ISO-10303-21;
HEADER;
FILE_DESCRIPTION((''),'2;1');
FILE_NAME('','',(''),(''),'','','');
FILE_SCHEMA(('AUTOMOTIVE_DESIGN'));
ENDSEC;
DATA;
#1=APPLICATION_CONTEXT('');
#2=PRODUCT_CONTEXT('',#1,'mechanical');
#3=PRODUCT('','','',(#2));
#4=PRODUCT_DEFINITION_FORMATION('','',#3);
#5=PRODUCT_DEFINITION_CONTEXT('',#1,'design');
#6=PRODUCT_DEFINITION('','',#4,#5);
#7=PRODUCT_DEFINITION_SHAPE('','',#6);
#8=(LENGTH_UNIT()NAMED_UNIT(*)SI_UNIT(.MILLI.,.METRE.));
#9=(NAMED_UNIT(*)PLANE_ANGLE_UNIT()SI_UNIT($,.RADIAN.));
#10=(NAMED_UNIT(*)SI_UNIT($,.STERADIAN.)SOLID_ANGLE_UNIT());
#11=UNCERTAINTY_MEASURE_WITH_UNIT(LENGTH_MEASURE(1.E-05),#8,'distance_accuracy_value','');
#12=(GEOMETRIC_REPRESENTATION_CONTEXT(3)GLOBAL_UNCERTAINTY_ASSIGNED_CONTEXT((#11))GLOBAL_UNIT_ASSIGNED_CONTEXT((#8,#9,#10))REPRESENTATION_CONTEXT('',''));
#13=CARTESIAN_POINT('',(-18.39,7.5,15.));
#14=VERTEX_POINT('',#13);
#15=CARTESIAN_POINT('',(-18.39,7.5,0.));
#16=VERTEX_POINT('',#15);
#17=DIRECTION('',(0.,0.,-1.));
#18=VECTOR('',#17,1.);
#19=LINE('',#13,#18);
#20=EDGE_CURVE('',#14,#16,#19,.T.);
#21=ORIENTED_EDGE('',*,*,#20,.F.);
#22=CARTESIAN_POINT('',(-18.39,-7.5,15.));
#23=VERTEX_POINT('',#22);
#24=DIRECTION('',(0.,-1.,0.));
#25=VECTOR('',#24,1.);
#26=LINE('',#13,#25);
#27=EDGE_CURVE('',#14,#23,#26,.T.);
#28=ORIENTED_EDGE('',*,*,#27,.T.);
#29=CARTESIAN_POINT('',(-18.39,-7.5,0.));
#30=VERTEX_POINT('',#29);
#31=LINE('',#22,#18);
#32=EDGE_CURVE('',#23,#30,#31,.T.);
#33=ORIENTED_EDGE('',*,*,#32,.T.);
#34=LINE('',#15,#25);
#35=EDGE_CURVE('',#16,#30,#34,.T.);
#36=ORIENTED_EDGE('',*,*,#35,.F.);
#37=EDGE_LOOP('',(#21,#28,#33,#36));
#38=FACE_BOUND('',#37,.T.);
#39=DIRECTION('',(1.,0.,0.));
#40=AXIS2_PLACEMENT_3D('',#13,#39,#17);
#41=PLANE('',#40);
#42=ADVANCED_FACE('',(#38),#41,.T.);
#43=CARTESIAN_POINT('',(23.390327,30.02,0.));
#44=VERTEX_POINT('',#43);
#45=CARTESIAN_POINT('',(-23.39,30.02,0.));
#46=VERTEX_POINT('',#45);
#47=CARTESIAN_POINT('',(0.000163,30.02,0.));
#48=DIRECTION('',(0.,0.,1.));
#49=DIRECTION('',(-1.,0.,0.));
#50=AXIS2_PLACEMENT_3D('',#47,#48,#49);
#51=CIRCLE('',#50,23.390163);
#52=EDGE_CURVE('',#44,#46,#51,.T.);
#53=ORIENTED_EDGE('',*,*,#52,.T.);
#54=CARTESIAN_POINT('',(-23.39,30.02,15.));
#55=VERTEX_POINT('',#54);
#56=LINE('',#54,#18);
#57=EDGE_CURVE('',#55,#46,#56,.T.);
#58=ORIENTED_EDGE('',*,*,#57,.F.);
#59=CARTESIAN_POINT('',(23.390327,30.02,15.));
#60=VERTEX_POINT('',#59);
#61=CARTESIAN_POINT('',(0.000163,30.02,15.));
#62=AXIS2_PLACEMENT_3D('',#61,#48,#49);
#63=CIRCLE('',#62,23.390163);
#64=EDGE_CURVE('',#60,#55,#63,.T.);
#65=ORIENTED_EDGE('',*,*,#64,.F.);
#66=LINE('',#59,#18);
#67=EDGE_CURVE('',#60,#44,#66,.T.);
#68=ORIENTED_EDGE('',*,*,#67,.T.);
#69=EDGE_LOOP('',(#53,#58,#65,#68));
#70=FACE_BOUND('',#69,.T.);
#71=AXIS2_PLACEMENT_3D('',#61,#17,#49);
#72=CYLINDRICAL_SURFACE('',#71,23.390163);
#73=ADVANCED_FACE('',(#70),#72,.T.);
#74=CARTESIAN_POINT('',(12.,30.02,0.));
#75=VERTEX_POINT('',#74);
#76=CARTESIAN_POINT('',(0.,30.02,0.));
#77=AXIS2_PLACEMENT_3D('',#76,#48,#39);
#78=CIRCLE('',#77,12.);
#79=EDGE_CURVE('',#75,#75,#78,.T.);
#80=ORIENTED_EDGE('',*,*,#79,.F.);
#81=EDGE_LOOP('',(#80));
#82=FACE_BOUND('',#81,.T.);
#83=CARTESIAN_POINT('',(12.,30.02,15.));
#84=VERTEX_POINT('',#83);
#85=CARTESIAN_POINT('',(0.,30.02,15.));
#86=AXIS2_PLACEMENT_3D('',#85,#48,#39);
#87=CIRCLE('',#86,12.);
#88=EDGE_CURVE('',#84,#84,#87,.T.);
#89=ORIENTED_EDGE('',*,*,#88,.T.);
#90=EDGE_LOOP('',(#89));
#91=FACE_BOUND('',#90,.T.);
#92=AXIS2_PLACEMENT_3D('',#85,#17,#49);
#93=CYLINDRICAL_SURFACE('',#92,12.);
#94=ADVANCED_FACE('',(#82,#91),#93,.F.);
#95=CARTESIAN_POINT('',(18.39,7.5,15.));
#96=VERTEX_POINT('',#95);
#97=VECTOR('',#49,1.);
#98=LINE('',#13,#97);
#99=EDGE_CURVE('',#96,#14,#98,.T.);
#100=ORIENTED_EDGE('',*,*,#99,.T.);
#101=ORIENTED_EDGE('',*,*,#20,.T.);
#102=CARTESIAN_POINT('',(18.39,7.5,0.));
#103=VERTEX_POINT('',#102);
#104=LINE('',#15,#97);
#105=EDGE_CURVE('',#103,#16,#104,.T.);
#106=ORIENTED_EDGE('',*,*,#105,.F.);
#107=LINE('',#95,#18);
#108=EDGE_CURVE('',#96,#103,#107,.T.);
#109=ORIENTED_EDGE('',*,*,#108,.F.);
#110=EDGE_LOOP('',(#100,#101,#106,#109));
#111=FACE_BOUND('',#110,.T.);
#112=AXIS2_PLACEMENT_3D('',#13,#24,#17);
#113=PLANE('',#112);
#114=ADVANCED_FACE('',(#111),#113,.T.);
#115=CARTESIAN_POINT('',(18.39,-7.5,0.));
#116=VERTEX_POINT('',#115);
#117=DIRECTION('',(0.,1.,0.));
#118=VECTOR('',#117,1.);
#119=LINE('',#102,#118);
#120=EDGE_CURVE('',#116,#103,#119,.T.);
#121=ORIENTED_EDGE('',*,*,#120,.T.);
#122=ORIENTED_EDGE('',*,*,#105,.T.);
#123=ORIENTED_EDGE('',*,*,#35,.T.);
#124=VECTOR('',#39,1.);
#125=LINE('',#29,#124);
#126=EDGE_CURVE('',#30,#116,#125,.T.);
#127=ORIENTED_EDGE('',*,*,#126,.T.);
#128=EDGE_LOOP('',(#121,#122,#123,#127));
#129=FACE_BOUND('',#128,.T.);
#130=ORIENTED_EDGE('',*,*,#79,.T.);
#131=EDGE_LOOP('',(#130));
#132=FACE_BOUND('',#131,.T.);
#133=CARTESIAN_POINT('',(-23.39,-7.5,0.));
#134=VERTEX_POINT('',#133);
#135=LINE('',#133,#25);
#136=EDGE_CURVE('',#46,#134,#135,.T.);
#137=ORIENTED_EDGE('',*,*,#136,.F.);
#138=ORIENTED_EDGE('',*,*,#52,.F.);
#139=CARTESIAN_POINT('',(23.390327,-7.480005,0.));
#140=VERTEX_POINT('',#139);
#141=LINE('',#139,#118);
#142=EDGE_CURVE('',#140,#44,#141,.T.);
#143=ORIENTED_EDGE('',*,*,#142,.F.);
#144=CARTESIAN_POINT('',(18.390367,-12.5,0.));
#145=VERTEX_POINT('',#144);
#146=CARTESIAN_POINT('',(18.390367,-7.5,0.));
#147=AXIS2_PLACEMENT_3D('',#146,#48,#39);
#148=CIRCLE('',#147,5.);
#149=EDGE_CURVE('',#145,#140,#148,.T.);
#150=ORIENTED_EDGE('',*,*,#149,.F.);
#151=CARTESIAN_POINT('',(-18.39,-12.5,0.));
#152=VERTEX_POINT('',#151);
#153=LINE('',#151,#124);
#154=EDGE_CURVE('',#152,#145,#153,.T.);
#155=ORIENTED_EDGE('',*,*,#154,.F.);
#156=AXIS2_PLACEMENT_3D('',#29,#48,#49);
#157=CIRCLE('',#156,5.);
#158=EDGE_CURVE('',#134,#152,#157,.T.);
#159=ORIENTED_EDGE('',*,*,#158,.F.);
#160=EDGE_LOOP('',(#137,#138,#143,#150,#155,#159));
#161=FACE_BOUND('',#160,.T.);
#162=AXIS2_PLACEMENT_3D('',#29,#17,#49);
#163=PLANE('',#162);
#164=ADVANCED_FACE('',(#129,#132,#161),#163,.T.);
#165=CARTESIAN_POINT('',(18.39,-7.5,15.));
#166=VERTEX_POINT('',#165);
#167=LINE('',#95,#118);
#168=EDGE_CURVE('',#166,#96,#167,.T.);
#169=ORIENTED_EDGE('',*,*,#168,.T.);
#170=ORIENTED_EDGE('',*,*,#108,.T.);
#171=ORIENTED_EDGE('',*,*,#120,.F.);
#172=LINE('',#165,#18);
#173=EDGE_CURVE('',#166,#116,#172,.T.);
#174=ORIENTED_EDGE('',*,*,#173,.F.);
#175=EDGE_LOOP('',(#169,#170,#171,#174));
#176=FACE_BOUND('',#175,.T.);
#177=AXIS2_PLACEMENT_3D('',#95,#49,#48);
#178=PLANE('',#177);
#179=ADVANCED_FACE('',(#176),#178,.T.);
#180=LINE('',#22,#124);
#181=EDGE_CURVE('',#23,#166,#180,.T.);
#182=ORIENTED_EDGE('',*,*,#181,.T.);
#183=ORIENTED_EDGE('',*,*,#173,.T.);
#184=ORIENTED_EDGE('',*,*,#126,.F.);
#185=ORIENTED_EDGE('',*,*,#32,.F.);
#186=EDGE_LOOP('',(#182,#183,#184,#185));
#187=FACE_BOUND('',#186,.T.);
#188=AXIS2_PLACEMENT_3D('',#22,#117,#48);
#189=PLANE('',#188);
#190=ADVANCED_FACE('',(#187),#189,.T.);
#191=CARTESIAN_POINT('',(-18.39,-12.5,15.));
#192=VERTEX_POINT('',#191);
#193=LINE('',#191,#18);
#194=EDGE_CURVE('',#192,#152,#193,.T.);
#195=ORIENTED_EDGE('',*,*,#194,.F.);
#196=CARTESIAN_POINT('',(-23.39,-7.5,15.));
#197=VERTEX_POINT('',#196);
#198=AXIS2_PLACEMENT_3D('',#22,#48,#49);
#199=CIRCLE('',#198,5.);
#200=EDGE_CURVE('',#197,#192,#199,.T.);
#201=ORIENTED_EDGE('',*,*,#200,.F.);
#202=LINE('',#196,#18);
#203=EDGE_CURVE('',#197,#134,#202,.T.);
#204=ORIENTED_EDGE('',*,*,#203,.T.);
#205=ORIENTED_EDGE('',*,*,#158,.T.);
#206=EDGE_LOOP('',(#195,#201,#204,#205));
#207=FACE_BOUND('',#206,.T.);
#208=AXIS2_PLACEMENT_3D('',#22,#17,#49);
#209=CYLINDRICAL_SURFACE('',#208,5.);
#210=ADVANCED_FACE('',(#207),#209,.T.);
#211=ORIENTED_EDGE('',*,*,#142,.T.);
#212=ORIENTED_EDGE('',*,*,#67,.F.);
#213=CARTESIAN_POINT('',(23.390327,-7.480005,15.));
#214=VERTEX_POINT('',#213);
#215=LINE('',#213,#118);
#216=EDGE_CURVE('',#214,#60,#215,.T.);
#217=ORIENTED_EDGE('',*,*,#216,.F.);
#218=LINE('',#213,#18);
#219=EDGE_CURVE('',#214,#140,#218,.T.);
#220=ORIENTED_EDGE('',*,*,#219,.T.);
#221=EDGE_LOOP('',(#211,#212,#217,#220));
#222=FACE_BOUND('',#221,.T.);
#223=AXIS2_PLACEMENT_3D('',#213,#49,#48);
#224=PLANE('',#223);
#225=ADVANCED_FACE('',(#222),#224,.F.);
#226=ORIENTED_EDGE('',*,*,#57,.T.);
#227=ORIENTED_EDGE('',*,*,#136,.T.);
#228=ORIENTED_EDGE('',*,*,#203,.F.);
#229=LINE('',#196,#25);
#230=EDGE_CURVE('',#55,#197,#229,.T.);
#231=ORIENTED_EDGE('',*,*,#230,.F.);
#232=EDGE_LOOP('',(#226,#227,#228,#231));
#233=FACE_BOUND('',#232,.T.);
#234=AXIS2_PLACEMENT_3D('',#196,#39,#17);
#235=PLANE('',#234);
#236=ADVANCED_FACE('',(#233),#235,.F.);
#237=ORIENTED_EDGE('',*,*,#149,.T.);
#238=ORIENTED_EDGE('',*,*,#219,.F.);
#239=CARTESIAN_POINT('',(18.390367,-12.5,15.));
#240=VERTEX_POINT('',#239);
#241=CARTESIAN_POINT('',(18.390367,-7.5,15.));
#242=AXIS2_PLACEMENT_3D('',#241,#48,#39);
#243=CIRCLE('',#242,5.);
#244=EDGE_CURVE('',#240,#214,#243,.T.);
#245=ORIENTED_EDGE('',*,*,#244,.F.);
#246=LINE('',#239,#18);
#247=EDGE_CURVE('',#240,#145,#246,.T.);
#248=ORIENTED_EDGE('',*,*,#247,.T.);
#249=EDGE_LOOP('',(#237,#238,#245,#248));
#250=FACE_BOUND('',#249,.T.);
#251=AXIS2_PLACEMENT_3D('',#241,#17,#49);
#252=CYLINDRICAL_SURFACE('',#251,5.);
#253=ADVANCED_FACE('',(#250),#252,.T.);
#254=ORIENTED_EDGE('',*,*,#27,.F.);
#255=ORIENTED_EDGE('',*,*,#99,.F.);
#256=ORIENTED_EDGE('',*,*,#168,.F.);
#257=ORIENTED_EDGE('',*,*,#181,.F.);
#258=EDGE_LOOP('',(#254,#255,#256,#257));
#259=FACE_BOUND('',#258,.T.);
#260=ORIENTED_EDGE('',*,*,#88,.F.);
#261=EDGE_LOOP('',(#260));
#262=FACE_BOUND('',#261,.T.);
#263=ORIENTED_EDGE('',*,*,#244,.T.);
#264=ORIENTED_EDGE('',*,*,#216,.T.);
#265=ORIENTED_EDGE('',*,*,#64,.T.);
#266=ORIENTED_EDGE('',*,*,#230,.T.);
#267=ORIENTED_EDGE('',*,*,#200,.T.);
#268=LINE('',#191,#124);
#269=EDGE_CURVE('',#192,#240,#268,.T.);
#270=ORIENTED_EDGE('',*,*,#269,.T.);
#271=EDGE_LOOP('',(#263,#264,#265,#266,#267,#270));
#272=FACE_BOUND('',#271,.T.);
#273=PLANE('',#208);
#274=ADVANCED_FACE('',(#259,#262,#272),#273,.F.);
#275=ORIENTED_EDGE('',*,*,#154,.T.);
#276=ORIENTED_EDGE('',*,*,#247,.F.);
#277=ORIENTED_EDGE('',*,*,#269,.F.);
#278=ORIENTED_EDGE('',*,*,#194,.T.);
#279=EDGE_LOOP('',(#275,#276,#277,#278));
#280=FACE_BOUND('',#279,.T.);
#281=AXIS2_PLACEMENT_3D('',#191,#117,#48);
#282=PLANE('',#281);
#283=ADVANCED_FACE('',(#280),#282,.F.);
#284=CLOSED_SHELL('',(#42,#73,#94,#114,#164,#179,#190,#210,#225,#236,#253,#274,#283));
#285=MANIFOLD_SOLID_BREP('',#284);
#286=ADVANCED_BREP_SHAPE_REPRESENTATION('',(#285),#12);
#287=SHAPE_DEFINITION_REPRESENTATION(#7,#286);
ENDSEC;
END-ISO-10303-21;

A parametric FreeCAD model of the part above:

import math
import FreeCAD as App
import Part
import Sketcher

V = App.Vector
Q = App.Units.Quantity


def add_polygon(sketch, points):
    """Adds a closed chain of lines whose ends are joined by coincident constraints."""
    first, n = sketch.GeometryCount, len(points)
    for a, b in zip(points, points[1:] + points[:1]):
        sketch.addGeometry(Part.LineSegment(App.Vector(*a, 0), App.Vector(*b, 0)), False)
    for i in range(n):
        sketch.addConstraint(Sketcher.Constraint("Coincident", first + i, 2, first + (i + 1) % n, 1))

doc = App.newDocument("Part")
body = doc.addObject("PartDesign::Body", "Body")

sketch1 = doc.addObject("Sketcher::SketchObject", "Sketch")
body.addObject(sketch1)
sketch1.AttachmentSupport = (doc.XY_Plane, [""])
sketch1.MapMode = "FlatFace"
sketch1.addGeometry(Part.LineSegment(V(-18.39, -12.5, 0), V(18.390367, -12.5, 0)), False)
sketch1.addGeometry(Part.ArcOfCircle(Part.Circle(V(18.390367, -7.5, 0), V(0, 0, 1), 5), math.radians(-90), math.radians(0.229122)), False)
sketch1.addGeometry(Part.LineSegment(V(23.390327, -7.480005, 0), V(23.390327, 30.02, 0)), False)
sketch1.addGeometry(Part.ArcOfCircle(Part.Circle(V(0.000163, 30.02, 0), V(0, 0, 1), 23.390163), math.radians(0), math.radians(180)), False)
sketch1.addGeometry(Part.LineSegment(V(-23.39, 30.02, 0), V(-23.39, -7.5, 0)), False)
sketch1.addGeometry(Part.ArcOfCircle(Part.Circle(V(-18.39, -7.5, 0), V(0, 0, 1), 5), math.radians(180), math.radians(270)), False)
add_polygon(sketch1, [(18.39, -7.5), (-18.39, -7.5), (-18.39, 7.5), (18.39, 7.5)])
sketch1.addGeometry(Part.Circle(V(0, 30.02, 0), V(0, 0, 1), 12), False)
sketch1.addConstraint(Sketcher.Constraint("Coincident", 0, 2, 1, 1))
sketch1.addConstraint(Sketcher.Constraint("Coincident", 1, 2, 2, 1))
sketch1.addConstraint(Sketcher.Constraint("Coincident", 2, 2, 3, 1))
sketch1.addConstraint(Sketcher.Constraint("Coincident", 3, 2, 4, 1))
sketch1.addConstraint(Sketcher.Constraint("Coincident", 4, 2, 5, 1))
sketch1.addConstraint(Sketcher.Constraint("Coincident", 5, 2, 0, 1))
sketch1.addConstraint(Sketcher.Constraint("Horizontal", 0))
sketch1.addConstraint(Sketcher.Constraint("Vertical", 2))
sketch1.addConstraint(Sketcher.Constraint("Vertical", 4))
sketch1.addConstraint(Sketcher.Constraint("Horizontal", 6))
sketch1.addConstraint(Sketcher.Constraint("Vertical", 7))
sketch1.addConstraint(Sketcher.Constraint("Horizontal", 8))
sketch1.addConstraint(Sketcher.Constraint("Vertical", 9))
sketch1.addConstraint(Sketcher.Constraint("Coincident", 6, 2, 5, 3))
sketch1.addConstraint(Sketcher.Constraint("PointOnObject", 10, 3, -2))
sketch1.addConstraint(Sketcher.Constraint("Diameter", 10, Q("24 mm")))
sketch1.addConstraint(Sketcher.Constraint("Radius", 1, Q("5 mm")))
sketch1.addConstraint(Sketcher.Constraint("Radius", 5, Q("5 mm")))
sketch1.addConstraint(Sketcher.Constraint("DistanceY", 7, 1, 7, 2, Q("15 mm")))
sketch1.addConstraint(Sketcher.Constraint("DistanceY", 0, 2, 4, 2, Q("5 mm")))
sketch1.addConstraint(Sketcher.Constraint("DistanceX", 4, 2, 5, 2, Q("5 mm")))
sketch1.addConstraint(Sketcher.Constraint("DistanceX", 6, 2, 6, 1, Q("36.78 mm")))
sketch1.addConstraint(Sketcher.Constraint("DistanceY", 4, 2, 4, 1, Q("37.52 mm")))
sketch1.addConstraint(Sketcher.Constraint("DistanceY", 1, 3, -1, 1, Q("7.5 mm")))
sketch1.addConstraint(Sketcher.Constraint("DistanceY", -1, 1, 3, 3, Q("30.02 mm")))
sketch1.addConstraint(Sketcher.Constraint("DistanceX", 5, 3, -1, 1, Q("18.39 mm")))
sketch1.addConstraint(Sketcher.Constraint("DistanceY", -1, 1, 10, 3, Q("30.02 mm")))
sketch1.addConstraint(Sketcher.Constraint("DistanceY", -1, 1, 2, 2, Q("30.02 mm")))
sketch1.addConstraint(Sketcher.Constraint("Radius", 3, Q("23.390163 mm")))
sketch1.addConstraint(Sketcher.Constraint("DistanceX", 0, 1, 0, 2, Q("36.780367 mm")))
sketch1.addConstraint(Sketcher.Constraint("DistanceY", 2, 1, 2, 2, Q("37.500005 mm")))
pad1 = doc.addObject("PartDesign::Pad", "Pad")
body.addObject(pad1)
pad1.Profile = sketch1
pad1.Length = 15

doc.recompute()
